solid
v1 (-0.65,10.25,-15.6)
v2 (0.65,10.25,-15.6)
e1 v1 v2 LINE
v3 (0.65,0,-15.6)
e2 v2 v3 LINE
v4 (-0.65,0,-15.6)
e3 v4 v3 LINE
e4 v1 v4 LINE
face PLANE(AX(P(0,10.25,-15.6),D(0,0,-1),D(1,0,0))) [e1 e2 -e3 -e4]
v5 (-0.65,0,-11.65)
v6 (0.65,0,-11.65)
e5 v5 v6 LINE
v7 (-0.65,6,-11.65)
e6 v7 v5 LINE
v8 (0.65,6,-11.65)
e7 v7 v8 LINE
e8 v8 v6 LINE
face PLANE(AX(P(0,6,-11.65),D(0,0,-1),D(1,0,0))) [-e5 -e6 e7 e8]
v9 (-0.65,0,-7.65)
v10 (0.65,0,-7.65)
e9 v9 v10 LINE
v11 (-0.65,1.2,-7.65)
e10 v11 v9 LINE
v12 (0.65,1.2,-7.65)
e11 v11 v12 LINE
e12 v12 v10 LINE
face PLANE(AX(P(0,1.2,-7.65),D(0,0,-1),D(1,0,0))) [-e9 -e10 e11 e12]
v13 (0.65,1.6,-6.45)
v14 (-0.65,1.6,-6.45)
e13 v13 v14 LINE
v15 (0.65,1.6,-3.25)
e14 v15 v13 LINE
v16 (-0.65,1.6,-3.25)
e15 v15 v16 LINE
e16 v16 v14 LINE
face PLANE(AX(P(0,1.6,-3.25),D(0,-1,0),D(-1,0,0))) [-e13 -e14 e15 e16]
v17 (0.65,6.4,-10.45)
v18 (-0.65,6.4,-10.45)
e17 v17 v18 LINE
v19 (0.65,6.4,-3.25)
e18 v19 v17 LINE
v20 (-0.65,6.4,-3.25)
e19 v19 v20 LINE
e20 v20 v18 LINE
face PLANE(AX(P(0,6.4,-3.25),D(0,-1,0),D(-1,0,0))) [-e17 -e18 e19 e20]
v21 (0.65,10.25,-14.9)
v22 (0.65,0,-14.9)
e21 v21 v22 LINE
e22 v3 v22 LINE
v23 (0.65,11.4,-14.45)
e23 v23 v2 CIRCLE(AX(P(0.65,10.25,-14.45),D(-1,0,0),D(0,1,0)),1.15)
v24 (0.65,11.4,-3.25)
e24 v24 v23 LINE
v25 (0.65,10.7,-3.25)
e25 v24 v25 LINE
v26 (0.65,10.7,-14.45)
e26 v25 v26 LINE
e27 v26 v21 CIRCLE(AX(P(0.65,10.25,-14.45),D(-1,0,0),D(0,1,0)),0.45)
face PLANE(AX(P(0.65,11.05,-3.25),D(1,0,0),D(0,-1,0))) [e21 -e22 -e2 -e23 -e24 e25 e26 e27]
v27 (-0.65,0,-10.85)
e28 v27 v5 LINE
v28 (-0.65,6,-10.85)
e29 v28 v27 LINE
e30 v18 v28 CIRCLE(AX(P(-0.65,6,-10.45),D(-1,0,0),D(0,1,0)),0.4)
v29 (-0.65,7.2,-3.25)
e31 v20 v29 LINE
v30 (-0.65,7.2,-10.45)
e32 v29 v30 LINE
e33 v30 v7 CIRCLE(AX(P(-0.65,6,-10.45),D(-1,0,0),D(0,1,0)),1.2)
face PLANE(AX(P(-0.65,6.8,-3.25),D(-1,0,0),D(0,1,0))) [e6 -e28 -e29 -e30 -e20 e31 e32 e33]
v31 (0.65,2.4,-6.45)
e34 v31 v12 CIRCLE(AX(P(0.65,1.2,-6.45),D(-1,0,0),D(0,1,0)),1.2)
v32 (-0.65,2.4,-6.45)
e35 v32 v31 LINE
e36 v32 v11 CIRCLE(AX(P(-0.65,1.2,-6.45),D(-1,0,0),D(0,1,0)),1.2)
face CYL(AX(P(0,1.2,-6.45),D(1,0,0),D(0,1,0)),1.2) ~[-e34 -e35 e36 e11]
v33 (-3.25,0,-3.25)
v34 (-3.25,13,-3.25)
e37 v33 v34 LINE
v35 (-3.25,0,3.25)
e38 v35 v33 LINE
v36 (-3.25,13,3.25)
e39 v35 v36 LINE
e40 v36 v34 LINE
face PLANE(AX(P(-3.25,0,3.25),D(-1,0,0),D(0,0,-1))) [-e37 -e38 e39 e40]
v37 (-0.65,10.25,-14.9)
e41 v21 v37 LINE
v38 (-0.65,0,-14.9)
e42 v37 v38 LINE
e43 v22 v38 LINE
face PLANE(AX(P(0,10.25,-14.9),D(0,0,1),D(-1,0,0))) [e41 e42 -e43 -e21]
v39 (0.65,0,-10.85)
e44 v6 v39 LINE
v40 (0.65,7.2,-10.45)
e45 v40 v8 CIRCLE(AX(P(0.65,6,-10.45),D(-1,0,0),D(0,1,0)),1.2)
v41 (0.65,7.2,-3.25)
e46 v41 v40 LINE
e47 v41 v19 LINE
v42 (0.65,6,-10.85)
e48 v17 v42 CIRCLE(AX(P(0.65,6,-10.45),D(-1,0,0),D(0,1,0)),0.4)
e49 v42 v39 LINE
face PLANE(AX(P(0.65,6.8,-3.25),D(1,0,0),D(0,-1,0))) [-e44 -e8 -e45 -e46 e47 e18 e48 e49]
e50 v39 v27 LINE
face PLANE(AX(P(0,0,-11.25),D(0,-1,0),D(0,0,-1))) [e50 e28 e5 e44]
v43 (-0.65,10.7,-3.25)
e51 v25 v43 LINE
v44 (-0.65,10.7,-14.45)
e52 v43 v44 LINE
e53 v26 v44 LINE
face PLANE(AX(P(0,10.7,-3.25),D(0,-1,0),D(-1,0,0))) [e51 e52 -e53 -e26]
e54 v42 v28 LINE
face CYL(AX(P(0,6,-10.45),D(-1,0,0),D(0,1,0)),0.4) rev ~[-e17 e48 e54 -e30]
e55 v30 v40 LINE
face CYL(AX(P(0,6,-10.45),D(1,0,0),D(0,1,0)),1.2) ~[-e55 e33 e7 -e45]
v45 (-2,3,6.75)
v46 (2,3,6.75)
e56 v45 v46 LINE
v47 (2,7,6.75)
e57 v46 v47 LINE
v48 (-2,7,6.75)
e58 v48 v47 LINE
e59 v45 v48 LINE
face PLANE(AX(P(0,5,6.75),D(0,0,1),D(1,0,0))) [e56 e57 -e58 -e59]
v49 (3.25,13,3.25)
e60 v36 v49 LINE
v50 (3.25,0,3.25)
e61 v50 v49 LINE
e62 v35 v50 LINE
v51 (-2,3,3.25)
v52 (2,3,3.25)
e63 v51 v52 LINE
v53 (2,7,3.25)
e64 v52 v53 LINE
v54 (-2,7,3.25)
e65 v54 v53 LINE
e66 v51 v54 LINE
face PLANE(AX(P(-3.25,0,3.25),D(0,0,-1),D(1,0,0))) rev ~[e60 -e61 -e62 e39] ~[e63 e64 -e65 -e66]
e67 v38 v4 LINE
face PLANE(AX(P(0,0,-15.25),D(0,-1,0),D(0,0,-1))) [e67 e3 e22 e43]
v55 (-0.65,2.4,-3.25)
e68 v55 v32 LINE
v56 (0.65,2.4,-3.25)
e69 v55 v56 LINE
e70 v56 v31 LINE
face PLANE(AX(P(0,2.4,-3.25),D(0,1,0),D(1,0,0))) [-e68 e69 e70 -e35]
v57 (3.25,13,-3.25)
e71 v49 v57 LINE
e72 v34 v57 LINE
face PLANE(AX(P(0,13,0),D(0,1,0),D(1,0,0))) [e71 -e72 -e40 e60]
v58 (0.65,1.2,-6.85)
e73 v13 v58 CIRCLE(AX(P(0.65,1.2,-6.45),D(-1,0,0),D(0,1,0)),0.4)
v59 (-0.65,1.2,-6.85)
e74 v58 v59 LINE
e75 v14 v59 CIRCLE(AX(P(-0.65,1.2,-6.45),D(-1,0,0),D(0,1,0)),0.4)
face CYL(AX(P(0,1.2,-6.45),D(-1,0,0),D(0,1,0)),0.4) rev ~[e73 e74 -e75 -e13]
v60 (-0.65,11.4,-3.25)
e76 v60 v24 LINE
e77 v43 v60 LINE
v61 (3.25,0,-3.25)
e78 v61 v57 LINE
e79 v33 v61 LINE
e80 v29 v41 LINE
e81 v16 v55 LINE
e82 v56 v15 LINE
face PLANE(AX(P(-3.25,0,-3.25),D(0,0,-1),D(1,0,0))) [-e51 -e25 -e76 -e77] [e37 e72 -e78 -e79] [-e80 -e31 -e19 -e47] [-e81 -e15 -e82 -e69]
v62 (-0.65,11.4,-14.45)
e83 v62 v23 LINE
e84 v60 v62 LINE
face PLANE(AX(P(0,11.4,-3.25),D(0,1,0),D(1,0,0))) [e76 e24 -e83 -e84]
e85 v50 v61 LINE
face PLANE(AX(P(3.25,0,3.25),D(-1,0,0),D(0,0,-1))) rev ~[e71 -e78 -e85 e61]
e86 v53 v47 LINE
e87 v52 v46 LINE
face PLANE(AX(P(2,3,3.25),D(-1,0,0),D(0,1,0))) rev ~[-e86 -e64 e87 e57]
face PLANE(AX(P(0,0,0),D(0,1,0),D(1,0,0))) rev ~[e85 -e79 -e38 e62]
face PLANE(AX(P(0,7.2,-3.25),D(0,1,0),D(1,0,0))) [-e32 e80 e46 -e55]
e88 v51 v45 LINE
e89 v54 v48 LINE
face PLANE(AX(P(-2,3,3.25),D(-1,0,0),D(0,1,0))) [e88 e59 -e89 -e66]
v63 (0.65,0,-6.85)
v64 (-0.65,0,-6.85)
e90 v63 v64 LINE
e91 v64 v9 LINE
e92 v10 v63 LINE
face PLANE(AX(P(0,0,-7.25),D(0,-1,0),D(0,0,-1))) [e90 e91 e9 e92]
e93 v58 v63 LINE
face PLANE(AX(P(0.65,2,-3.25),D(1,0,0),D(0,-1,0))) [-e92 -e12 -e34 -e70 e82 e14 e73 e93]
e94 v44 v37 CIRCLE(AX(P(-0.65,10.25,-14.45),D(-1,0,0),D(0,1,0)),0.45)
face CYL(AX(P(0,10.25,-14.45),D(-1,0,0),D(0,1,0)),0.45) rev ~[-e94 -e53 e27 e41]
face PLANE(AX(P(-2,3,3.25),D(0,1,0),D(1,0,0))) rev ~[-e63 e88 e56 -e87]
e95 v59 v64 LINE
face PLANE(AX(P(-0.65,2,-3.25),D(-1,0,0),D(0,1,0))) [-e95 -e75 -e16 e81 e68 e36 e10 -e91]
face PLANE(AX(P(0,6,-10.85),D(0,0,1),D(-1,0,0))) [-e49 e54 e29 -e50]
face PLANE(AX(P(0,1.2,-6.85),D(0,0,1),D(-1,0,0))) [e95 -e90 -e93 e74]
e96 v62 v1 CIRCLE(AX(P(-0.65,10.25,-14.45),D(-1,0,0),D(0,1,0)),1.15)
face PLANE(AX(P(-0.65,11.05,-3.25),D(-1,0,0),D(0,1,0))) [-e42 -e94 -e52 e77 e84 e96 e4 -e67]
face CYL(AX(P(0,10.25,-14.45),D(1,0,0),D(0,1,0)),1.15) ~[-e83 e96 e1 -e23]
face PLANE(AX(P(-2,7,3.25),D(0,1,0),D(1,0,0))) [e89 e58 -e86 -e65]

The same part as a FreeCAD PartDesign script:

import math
import FreeCAD as App
import Part
import Sketcher
from FreeCAD import Vector

doc = App.newDocument("Part")
body = doc.addObject("PartDesign::Body", "Body")

sketch1 = body.newObject("Sketcher::SketchObject", "Sketch")
sketch1.AttachmentSupport = (doc.getObject("XZ_Plane"), [""])
sketch1.MapMode = "FlatFace"
sketch1.addGeometry(Part.LineSegment(Vector(-3.25, -3.25, 0), Vector(-3.25, 3.25, 0)), False)
sketch1.addGeometry(Part.LineSegment(Vector(-3.25, 3.25, 0), Vector(3.25, 3.25, 0)), False)
sketch1.addGeometry(Part.LineSegment(Vector(3.25, 3.25, 0), Vector(3.25, -3.25, 0)), False)
sketch1.addGeometry(Part.LineSegment(Vector(3.25, -3.25, 0), Vector(-3.25, -3.25, 0)), False)
sketch1.addConstraint(Sketcher.Constraint("Coincident", 0, 2, 1, 1))
sketch1.addConstraint(Sketcher.Constraint("Coincident", 1, 2, 2, 1))
sketch1.addConstraint(Sketcher.Constraint("Coincident", 2, 2, 3, 1))
sketch1.addConstraint(Sketcher.Constraint("Coincident", 3, 2, 0, 1))
sketch1.addConstraint(Sketcher.Constraint("Vertical", 0))
sketch1.addConstraint(Sketcher.Constraint("Horizontal", 1))
sketch1.addConstraint(Sketcher.Constraint("Vertical", 2))
sketch1.addConstraint(Sketcher.Constraint("Horizontal", 3))
sketch1.addConstraint(Sketcher.Constraint("Symmetric", 0, 2, 2, 2, -1, 1))
sketch1.addConstraint(Sketcher.Constraint("Equal", 3, 0))
sketch1.addConstraint(Sketcher.Constraint("DistanceX", 1, 1, 1, 2, 6.5))
pad1 = body.newObject("PartDesign::Pad", "Pad")
pad1.Profile = sketch1
pad1.Length = 13
pad1.Reversed = True

sketch2 = body.newObject("Sketcher::SketchObject", "Sketch001")
sketch2.AttachmentSupport = (doc.getObject("XY_Plane"), [""])
sketch2.MapMode = "FlatFace"
sketch2.AttachmentOffset = App.Placement(Vector(0, 0, 3.25), App.Rotation())
sketch2.addGeometry(Part.LineSegment(Vector(-2, 7, 0), Vector(-2, 3, 0)), False)
sketch2.addGeometry(Part.LineSegment(Vector(-2, 3, 0), Vector(2, 3, 0)), False)
sketch2.addGeometry(Part.LineSegment(Vector(2, 3, 0), Vector(2, 7, 0)), False)
sketch2.addGeometry(Part.LineSegment(Vector(2, 7, 0), Vector(-2, 7, 0)), False)
sketch2.addConstraint(Sketcher.Constraint("Coincident", 0, 2, 1, 1))
sketch2.addConstraint(Sketcher.Constraint("Coincident", 1, 2, 2, 1))
sketch2.addConstraint(Sketcher.Constraint("Coincident", 2, 2, 3, 1))
sketch2.addConstraint(Sketcher.Constraint("Coincident", 3, 2, 0, 1))
sketch2.addConstraint(Sketcher.Constraint("Vertical", 0))
sketch2.addConstraint(Sketcher.Constraint("Horizontal", 1))
sketch2.addConstraint(Sketcher.Constraint("Vertical", 2))
sketch2.addConstraint(Sketcher.Constraint("Horizontal", 3))
sketch2.addConstraint(Sketcher.Constraint("Equal", 3, 0))
sketch2.addConstraint(Sketcher.Constraint("DistanceX", 1, 1, 1, 2, 4.0))
sketch2.addConstraint(Sketcher.Constraint("DistanceX", 0, 2, -1, 1, 2.0))
sketch2.addConstraint(Sketcher.Constraint("DistanceY", -1, 1, 0, 2, 3.0))
pad2 = body.newObject("PartDesign::Pad", "Pad001")
pad2.Profile = sketch2
pad2.Length = 3.5

sketch3 = body.newObject("Sketcher::SketchObject", "Sketch002")
sketch3.AttachmentSupport = (doc.getObject("XY_Plane"), [""])
sketch3.MapMode = "FlatFace"
sketch3.AttachmentOffset = App.Placement(Vector(0, 0, -3.25), App.Rotation())
sketch3.addGeometry(Part.LineSegment(Vector(0.65, 11.4, 0), Vector(0.65, 10.7, 0)), False)
sketch3.addGeometry(Part.LineSegment(Vector(0.65, 10.7, 0), Vector(-0.65, 10.7, 0)), False)
sketch3.addGeometry(Part.LineSegment(Vector(-0.65, 10.7, 0), Vector(-0.65, 11.4, 0)), False)
sketch3.addGeometry(Part.LineSegment(Vector(-0.65, 11.4, 0), Vector(0.65, 11.4, 0)), False)
sketch3.addConstraint(Sketcher.Constraint("Coincident", 0, 2, 1, 1))
sketch3.addConstraint(Sketcher.Constraint("Coincident", 1, 2, 2, 1))
sketch3.addConstraint(Sketcher.Constraint("Coincident", 2, 2, 3, 1))
sketch3.addConstraint(Sketcher.Constraint("Coincident", 3, 2, 0, 1))
sketch3.addConstraint(Sketcher.Constraint("Vertical", 0))
sketch3.addConstraint(Sketcher.Constraint("Horizontal", 1))
sketch3.addConstraint(Sketcher.Constraint("Vertical", 2))
sketch3.addConstraint(Sketcher.Constraint("Horizontal", 3))
sketch3.addConstraint(Sketcher.Constraint("DistanceX", 1, 2, 1, 1, 1.3))
sketch3.addConstraint(Sketcher.Constraint("DistanceY", 0, 2, 0, 1, 0.7))
sketch3.addConstraint(Sketcher.Constraint("DistanceY", -1, 1, 0, 2, 10.7))
sketch3.addConstraint(Sketcher.Constraint("DistanceX", -1, 1, 0, 2, 0.65))

sketch4 = body.newObject("Sketcher::SketchObject", "Sketch003")
sketch4.AttachmentSupport = (doc.getObject("YZ_Plane"), [""])
sketch4.MapMode = "FlatFace"
sketch4.addGeometry(Part.LineSegment(Vector(11.05, -3.25, 0), Vector(11.05, -14.45, 0)), False)
sketch4.addGeometry(Part.ArcOfCircle(Part.Circle(Vector(10.25, -14.45, 0), Vector(0, 0, 1), 0.8), math.radians(-90), math.radians(0)), False)
sketch4.addGeometry(Part.LineSegment(Vector(10.25, -15.25, 0), Vector(0, -15.25, 0)), False)
sketch4.addConstraint(Sketcher.Constraint("Tangent", 0, 2, 1, 2))
sketch4.addConstraint(Sketcher.Constraint("Tangent", 1, 1, 2, 1))
sketch4.addConstraint(Sketcher.Constraint("Vertical", 0))
sketch4.addConstraint(Sketcher.Constraint("Horizontal", 2))
sketch4.addConstraint(Sketcher.Constraint("PointOnObject", 2, 2, -2))
sketch4.addConstraint(Sketcher.Constraint("Radius", 1, 0.8))
sketch4.addConstraint(Sketcher.Constraint("DistanceY", 0, 2, 0, 1, 11.2))
sketch4.addConstraint(Sketcher.Constraint("DistanceX", 2, 2, 2, 1, 10.25))
sketch4.addConstraint(Sketcher.Constraint("DistanceY", 1, 3, -1, 1, 14.45))
doc.recompute()

additivepipe = body.newObject("PartDesign::AdditivePipe", "AdditivePipe")
additivepipe.Profile = sketch3
additivepipe.Spine = (sketch4, ["Edge1", "Edge2", "Edge3"])

sketch5 = body.newObject("Sketcher::SketchObject", "Sketch004")
sketch5.AttachmentSupport = (doc.getObject("XY_Plane"), [""])
sketch5.MapMode = "FlatFace"
sketch5.AttachmentOffset = App.Placement(Vector(0, 0, -3.25), App.Rotation())
sketch5.addGeometry(Part.LineSegment(Vector(0.65, 7.2, 0), Vector(0.65, 6.4, 0)), False)
sketch5.addGeometry(Part.LineSegment(Vector(0.65, 6.4, 0), Vector(-0.65, 6.4, 0)), False)
sketch5.addGeometry(Part.LineSegment(Vector(-0.65, 6.4, 0), Vector(-0.65, 7.2, 0)), False)
sketch5.addGeometry(Part.LineSegment(Vector(-0.65, 7.2, 0), Vector(0.65, 7.2, 0)), False)
sketch5.addConstraint(Sketcher.Constraint("Coincident", 0, 2, 1, 1))
sketch5.addConstraint(Sketcher.Constraint("Coincident", 1, 2, 2, 1))
sketch5.addConstraint(Sketcher.Constraint("Coincident", 2, 2, 3, 1))
sketch5.addConstraint(Sketcher.Constraint("Coincident", 3, 2, 0, 1))
sketch5.addConstraint(Sketcher.Constraint("Vertical", 0))
sketch5.addConstraint(Sketcher.Constraint("Horizontal", 1))
sketch5.addConstraint(Sketcher.Constraint("Vertical", 2))
sketch5.addConstraint(Sketcher.Constraint("Horizontal", 3))
sketch5.addConstraint(Sketcher.Constraint("DistanceX", 1, 2, 1, 1, 1.3))
sketch5.addConstraint(Sketcher.Constraint("DistanceY", 0, 2, 0, 1, 0.8))
sketch5.addConstraint(Sketcher.Constraint("DistanceY", -1, 1, 0, 2, 6.4))
sketch5.addConstraint(Sketcher.Constraint("DistanceX", -1, 1, 0, 2, 0.65))

sketch6 = body.newObject("Sketcher::SketchObject", "Sketch005")
sketch6.AttachmentSupport = (doc.getObject("YZ_Plane"), [""])
sketch6.MapMode = "FlatFace"
sketch6.addGeometry(Part.LineSegment(Vector(6.8, -3.25, 0), Vector(6.8, -10.45, 0)), False)
sketch6.addGeometry(Part.ArcOfCircle(Part.Circle(Vector(6, -10.45, 0), Vector(0, 0, 1), 0.8), math.radians(-90), math.radians(0)), False)
sketch6.addGeometry(Part.LineSegment(Vector(6, -11.25, 0), Vector(0, -11.25, 0)), False)
sketch6.addConstraint(Sketcher.Constraint("Tangent", 0, 2, 1, 2))
sketch6.addConstraint(Sketcher.Constraint("Tangent", 1, 1, 2, 1))
sketch6.addConstraint(Sketcher.Constraint("Vertical", 0))
sketch6.addConstraint(Sketcher.Constraint("Horizontal", 2))
sketch6.addConstraint(Sketcher.Constraint("PointOnObject", 2, 2, -2))
sketch6.addConstraint(Sketcher.Constraint("Radius", 1, 0.8))
sketch6.addConstraint(Sketcher.Constraint("DistanceX", 2, 2, 2, 1, 6.0))
sketch6.addConstraint(Sketcher.Constraint("DistanceY", 0, 2, 0, 1, 7.2))
sketch6.addConstraint(Sketcher.Constraint("DistanceY", 1, 3, -1, 1, 10.45))
doc.recompute()

additivepipe2 = body.newObject("PartDesign::AdditivePipe", "AdditivePipe001")
additivepipe2.Profile = sketch5
additivepipe2.Spine = (sketch6, ["Edge1", "Edge2", "Edge3"])

sketch7 = body.newObject("Sketcher::SketchObject", "Sketch006")
sketch7.AttachmentSupport = (doc.getObject("XY_Plane"), [""])
sketch7.MapMode = "FlatFace"
sketch7.AttachmentOffset = App.Placement(Vector(0, 0, -3.25), App.Rotation())
sketch7.addGeometry(Part.LineSegment(Vector(0.65, 2.4, 0), Vector(0.65, 1.6, 0)), False)
sketch7.addGeometry(Part.LineSegment(Vector(0.65, 1.6, 0), Vector(-0.65, 1.6, 0)), False)
sketch7.addGeometry(Part.LineSegment(Vector(-0.65, 1.6, 0), Vector(-0.65, 2.4, 0)), False)
sketch7.addGeometry(Part.LineSegment(Vector(-0.65, 2.4, 0), Vector(0.65, 2.4, 0)), False)
sketch7.addConstraint(Sketcher.Constraint("Coincident", 0, 2, 1, 1))
sketch7.addConstraint(Sketcher.Constraint("Coincident", 1, 2, 2, 1))
sketch7.addConstraint(Sketcher.Constraint("Coincident", 2, 2, 3, 1))
sketch7.addConstraint(Sketcher.Constraint("Coincident", 3, 2, 0, 1))
sketch7.addConstraint(Sketcher.Constraint("Vertical", 0))
sketch7.addConstraint(Sketcher.Constraint("Horizontal", 1))
sketch7.addConstraint(Sketcher.Constraint("Vertical", 2))
sketch7.addConstraint(Sketcher.Constraint("Horizontal", 3))
sketch7.addConstraint(Sketcher.Constraint("DistanceX", 1, 2, 1, 1, 1.3))
sketch7.addConstraint(Sketcher.Constraint("DistanceY", 0, 2, 0, 1, 0.8))
sketch7.addConstraint(Sketcher.Constraint("DistanceY", -1, 1, 0, 2, 1.6))
sketch7.addConstraint(Sketcher.Constraint("DistanceX", -1, 1, 0, 2, 0.65))

sketch8 = body.newObject("Sketcher::SketchObject", "Sketch007")
sketch8.AttachmentSupport = (doc.getObject("YZ_Plane"), [""])
sketch8.MapMode = "FlatFace"
sketch8.addGeometry(Part.LineSegment(Vector(2, -3.25, 0), Vector(2, -6.45, 0)), False)
sketch8.addGeometry(Part.ArcOfCircle(Part.Circle(Vector(1.2, -6.45, 0), Vector(0, 0, 1), 0.8), math.radians(-90), math.radians(0)), False)
sketch8.addGeometry(Part.LineSegment(Vector(1.2, -7.25, 0), Vector(0, -7.25, 0)), False)
sketch8.addConstraint(Sketcher.Constraint("Tangent", 0, 2, 1, 2))
sketch8.addConstraint(Sketcher.Constraint("Tangent", 1, 1, 2, 1))
sketch8.addConstraint(Sketcher.Constraint("Vertical", 0))
sketch8.addConstraint(Sketcher.Constraint("Horizontal", 2))
sketch8.addConstraint(Sketcher.Constraint("PointOnObject", 2, 2, -2))
sketch8.addConstraint(Sketcher.Constraint("Radius", 1, 0.8))
sketch8.addConstraint(Sketcher.Constraint("DistanceX", 2, 2, 2, 1, 1.2))
sketch8.addConstraint(Sketcher.Constraint("DistanceY", 0, 2, 0, 1, 3.2))
sketch8.addConstraint(Sketcher.Constraint("DistanceY", 1, 3, -1, 1, 6.45))
doc.recompute()

additivepipe3 = body.newObject("PartDesign::AdditivePipe", "AdditivePipe002")
additivepipe3.Profile = sketch7
additivepipe3.Spine = (sketch8, ["Edge1", "Edge2", "Edge3"])

doc.recompute()
